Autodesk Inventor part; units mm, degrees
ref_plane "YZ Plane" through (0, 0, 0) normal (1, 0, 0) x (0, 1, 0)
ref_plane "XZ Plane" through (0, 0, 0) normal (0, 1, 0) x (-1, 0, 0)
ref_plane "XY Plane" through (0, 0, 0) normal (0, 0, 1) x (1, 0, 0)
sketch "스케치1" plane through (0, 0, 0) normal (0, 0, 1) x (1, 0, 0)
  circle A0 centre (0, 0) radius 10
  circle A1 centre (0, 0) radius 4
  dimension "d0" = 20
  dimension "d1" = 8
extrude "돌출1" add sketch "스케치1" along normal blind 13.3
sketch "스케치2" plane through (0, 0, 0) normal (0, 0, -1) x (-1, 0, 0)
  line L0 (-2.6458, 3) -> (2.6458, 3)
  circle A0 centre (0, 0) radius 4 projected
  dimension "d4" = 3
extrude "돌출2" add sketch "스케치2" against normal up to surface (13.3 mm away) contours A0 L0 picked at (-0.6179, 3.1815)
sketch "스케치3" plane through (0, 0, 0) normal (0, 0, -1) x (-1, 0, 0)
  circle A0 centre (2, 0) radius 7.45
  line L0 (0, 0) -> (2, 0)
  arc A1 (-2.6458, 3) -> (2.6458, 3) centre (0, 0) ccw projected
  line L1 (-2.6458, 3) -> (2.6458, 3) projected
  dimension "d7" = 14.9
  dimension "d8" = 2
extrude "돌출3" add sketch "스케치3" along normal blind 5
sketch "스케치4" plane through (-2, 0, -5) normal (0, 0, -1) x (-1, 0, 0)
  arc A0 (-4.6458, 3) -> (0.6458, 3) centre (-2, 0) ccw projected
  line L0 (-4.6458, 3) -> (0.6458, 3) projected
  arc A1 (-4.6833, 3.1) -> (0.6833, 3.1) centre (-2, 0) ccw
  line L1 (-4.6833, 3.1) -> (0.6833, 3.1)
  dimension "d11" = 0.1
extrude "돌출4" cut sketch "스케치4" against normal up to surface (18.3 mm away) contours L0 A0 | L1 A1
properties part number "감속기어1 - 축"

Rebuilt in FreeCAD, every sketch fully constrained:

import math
import FreeCAD as App
import Part
import Sketcher
Q = App.Units.Quantity

doc = App.newDocument("Part")
params = doc.addObject("Spreadsheet::Sheet", "Params")
for row, (alias, value) in enumerate([
    ("sketch1_diameter", "20 mm"),
    ("sketch1_diameter2", "8 mm"),
    ("pad1_length", "13.3 mm"),
    ("sketch2_radius", "4 mm"),
    ("pad2_length", "13.3 mm"),
    ("sketch3_diameter", "14.9 mm"),
    ("sketch3_radius", "4 mm"),
    ("pad3_length", "5 mm"),
    ("sketch4_radius", "4.1 mm"),
    ("pocket1_length", "18.3 mm"),
], start=1):
    params.set(f"A{row}", alias)
    params.set(f"B{row}", "=" + value)
    params.setAlias(f"B{row}", alias)

body = doc.addObject("PartDesign::Body", "Body")

sketch1 = doc.addObject("Sketcher::SketchObject", "Sketch")
body.addObject(sketch1)
sketch1.AttachmentSupport = (doc.XY_Plane, [""])
sketch1.MapMode = "FlatFace"
sketch1.addGeometry([
    Part.Circle(App.Vector(0, 0, 0), App.Vector(0, 0, 1), 10),
    Part.Circle(App.Vector(0, 0, 0), App.Vector(0, 0, 1), 4),
], False)
sketch1.addConstraint([
    Sketcher.Constraint("Coincident", 0, 3, -1, 1),
    Sketcher.Constraint("Coincident", 1, 3, -1, 1),
    Sketcher.Constraint("Diameter", 0, Q("20 mm")),
    Sketcher.Constraint("Diameter", 1, Q("8 mm")),
])
sketch1.setExpression("Constraints[2]", "Params.sketch1_diameter")
sketch1.setExpression("Constraints[3]", "Params.sketch1_diameter2")
pad1 = doc.addObject("PartDesign::Pad", "Pad")
body.addObject(pad1)
pad1.Profile = sketch1
pad1.setExpression("Length", "Params.pad1_length")

sketch2 = doc.addObject("Sketcher::SketchObject", "Sketch001")
body.addObject(sketch2)
sketch2.AttachmentSupport = (doc.XY_Plane, [""])
sketch2.MapMode = "FlatFace"
sketch2.addGeometry([
    Part.ArcOfCircle(Part.Circle(App.Vector(0, 0, 0), App.Vector(0, 0, 1), 4), math.radians(49), math.radians(131)),
    Part.LineSegment(App.Vector(-2.6, 3, 0), App.Vector(2.6, 3, 0)),
], False)
sketch2.addConstraint([
    Sketcher.Constraint("Coincident", 0, 1, 1, 2),
    Sketcher.Constraint("Coincident", 1, 1, 0, 2),
    Sketcher.Constraint("Horizontal", 1),
    Sketcher.Constraint("Coincident", 0, 3, -1, 1),
    Sketcher.Constraint("DistanceY", -1, 1, 0, 1, Q("3 mm")),
    Sketcher.Constraint("Radius", 0, Q("4 mm")),
])
sketch2.setExpression("Constraints[5]", "Params.sketch2_radius")
pad2 = doc.addObject("PartDesign::Pad", "Pad001")
body.addObject(pad2)
pad2.Profile = sketch2
pad2.setExpression("Length", "Params.pad2_length")

sketch3 = doc.addObject("Sketcher::SketchObject", "Sketch002")
body.addObject(sketch3)
sketch3.AttachmentSupport = (doc.XY_Plane, [""])
sketch3.MapMode = "FlatFace"
sketch3.addGeometry([
    Part.Circle(App.Vector(-2, 0, 0), App.Vector(0, 0, 1), 7.5),
    Part.ArcOfCircle(Part.Circle(App.Vector(0, 0, 0), App.Vector(0, 0, 1), 4), math.radians(131), math.radians(409)),
    Part.LineSegment(App.Vector(2.6, 3, 0), App.Vector(-2.6, 3, 0)),
], False)
sketch3.addConstraint([
    Sketcher.Constraint("Coincident", 1, 1, 2, 2),
    Sketcher.Constraint("Coincident", 2, 1, 1, 2),
    Sketcher.Constraint("Horizontal", 2),
    Sketcher.Constraint("Coincident", 1, 3, -1, 1),
    Sketcher.Constraint("PointOnObject", 0, 3, -1),
    Sketcher.Constraint("Diameter", 0, Q("14.9 mm")),
    Sketcher.Constraint("DistanceX", 0, 3, -1, 1, Q("2 mm")),
    Sketcher.Constraint("Radius", 1, Q("4 mm")),
    Sketcher.Constraint("DistanceY", -1, 1, 1, 1, Q("3 mm")),
])
sketch3.setExpression("Constraints[5]", "Params.sketch3_diameter")
sketch3.setExpression("Constraints[7]", "Params.sketch3_radius")
pad3 = doc.addObject("PartDesign::Pad", "Pad002")
body.addObject(pad3)
pad3.Profile = sketch3
pad3.setExpression("Length", "Params.pad3_length")
pad3.Reversed = True

sketch4 = doc.addObject("Sketcher::SketchObject", "Sketch003")
body.addObject(sketch4)
sketch4.AttachmentSupport = (doc.XY_Plane, [""])
sketch4.MapMode = "FlatFace"
sketch4.AttachmentOffset = App.Placement(App.Vector(0, 0, -5), App.Rotation())
sketch4.addGeometry([
    Part.LineSegment(App.Vector(-2.7, 3.1, 0), App.Vector(2.7, 3.1, 0)),
    Part.ArcOfCircle(Part.Circle(App.Vector(0, 0, 0), App.Vector(0, 0, 1), 4.1), math.radians(131), math.radians(409)),
], False)
sketch4.addConstraint([
    Sketcher.Constraint("Coincident", 0, 1, 1, 1),
    Sketcher.Constraint("Coincident", 1, 2, 0, 2),
    Sketcher.Constraint("Horizontal", 0),
    Sketcher.Constraint("Coincident", 1, 3, -1, 1),
    Sketcher.Constraint("Radius", 1, Q("4.1 mm")),
    Sketcher.Constraint("DistanceY", -1, 1, 0, 1, Q("3.1 mm")),
])
sketch4.setExpression("Constraints[4]", "Params.sketch4_radius")
pocket1 = doc.addObject("PartDesign::Pocket", "Pocket")
body.addObject(pocket1)
pocket1.Profile = sketch4
pocket1.setExpression("Length", "Params.pocket1_length")
pocket1.Reversed = True

doc.recompute()
